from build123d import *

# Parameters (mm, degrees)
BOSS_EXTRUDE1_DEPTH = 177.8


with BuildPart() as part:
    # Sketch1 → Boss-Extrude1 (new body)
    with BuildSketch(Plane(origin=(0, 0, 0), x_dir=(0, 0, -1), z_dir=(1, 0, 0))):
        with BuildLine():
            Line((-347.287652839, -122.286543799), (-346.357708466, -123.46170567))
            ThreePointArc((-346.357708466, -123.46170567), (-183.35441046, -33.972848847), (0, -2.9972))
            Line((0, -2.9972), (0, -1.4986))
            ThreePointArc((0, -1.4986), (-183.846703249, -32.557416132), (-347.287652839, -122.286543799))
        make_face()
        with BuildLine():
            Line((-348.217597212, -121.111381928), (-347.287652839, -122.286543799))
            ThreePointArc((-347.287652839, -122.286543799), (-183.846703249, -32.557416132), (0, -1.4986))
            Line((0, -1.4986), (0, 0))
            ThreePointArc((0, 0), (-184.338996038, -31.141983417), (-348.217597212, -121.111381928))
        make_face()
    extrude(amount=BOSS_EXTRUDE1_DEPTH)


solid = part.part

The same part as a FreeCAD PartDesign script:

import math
import FreeCAD as App
import Part
import Sketcher
from FreeCAD import Vector
Q = App.Units.Quantity

doc = App.newDocument("Part")
body = doc.addObject("PartDesign::Body", "Body")

sketch1 = body.newObject("Sketcher::SketchObject", "Sketch")
sketch1.AttachmentSupport = (doc.getObject("YZ_Plane"), [""])
sketch1.MapMode = "FlatFace"
sketch1.addGeometry([
    Part.ArcOfCircle(Part.Circle(Vector(-561.2, 0, 0), Vector(0, 0, 1), 558.2), math.radians(0), math.radians(38)),
    Part.LineSegment(Vector(-3, 0, 0), Vector(0, 0, 0)),
    Part.ArcOfCircle(Part.Circle(Vector(-561.2, 0, 0), Vector(0, 0, 1), 561.2), math.radians(0), math.radians(38)),
    Part.LineSegment(Vector(-121.1, 348.2, 0), Vector(-123.5, 346.4, 0)),
], False)
sketch1.addConstraint([
    Sketcher.Constraint("Coincident", 0, 1, 1, 1),
    Sketcher.Constraint("Coincident", 1, 2, 2, 1),
    Sketcher.Constraint("Coincident", 2, 2, 3, 1),
    Sketcher.Constraint("Coincident", 3, 2, 0, 2),
    Sketcher.Constraint("Horizontal", 1),
    Sketcher.Constraint("Coincident", 1, 2, -1, 1),
    Sketcher.Constraint("Coincident", 2, 3, 0, 3),
    Sketcher.Constraint("PointOnObject", 0, 3, -1),
    Sketcher.Constraint("DistanceX", 1, 1, 1, 2, Q("0.118 in")),
    Sketcher.Constraint("Radius", 0, Q("558.153452 mm")),
    Sketcher.Constraint("DistanceY", -1, 1, 3, 2, Q("346.357708 mm")),
    Sketcher.Constraint("Angle", 3, Q("-141.644269 deg")),
])
pad1 = body.newObject("PartDesign::Pad", "Pad")
pad1.Profile = sketch1
pad1.Length = Q("7 in")

doc.recompute()
